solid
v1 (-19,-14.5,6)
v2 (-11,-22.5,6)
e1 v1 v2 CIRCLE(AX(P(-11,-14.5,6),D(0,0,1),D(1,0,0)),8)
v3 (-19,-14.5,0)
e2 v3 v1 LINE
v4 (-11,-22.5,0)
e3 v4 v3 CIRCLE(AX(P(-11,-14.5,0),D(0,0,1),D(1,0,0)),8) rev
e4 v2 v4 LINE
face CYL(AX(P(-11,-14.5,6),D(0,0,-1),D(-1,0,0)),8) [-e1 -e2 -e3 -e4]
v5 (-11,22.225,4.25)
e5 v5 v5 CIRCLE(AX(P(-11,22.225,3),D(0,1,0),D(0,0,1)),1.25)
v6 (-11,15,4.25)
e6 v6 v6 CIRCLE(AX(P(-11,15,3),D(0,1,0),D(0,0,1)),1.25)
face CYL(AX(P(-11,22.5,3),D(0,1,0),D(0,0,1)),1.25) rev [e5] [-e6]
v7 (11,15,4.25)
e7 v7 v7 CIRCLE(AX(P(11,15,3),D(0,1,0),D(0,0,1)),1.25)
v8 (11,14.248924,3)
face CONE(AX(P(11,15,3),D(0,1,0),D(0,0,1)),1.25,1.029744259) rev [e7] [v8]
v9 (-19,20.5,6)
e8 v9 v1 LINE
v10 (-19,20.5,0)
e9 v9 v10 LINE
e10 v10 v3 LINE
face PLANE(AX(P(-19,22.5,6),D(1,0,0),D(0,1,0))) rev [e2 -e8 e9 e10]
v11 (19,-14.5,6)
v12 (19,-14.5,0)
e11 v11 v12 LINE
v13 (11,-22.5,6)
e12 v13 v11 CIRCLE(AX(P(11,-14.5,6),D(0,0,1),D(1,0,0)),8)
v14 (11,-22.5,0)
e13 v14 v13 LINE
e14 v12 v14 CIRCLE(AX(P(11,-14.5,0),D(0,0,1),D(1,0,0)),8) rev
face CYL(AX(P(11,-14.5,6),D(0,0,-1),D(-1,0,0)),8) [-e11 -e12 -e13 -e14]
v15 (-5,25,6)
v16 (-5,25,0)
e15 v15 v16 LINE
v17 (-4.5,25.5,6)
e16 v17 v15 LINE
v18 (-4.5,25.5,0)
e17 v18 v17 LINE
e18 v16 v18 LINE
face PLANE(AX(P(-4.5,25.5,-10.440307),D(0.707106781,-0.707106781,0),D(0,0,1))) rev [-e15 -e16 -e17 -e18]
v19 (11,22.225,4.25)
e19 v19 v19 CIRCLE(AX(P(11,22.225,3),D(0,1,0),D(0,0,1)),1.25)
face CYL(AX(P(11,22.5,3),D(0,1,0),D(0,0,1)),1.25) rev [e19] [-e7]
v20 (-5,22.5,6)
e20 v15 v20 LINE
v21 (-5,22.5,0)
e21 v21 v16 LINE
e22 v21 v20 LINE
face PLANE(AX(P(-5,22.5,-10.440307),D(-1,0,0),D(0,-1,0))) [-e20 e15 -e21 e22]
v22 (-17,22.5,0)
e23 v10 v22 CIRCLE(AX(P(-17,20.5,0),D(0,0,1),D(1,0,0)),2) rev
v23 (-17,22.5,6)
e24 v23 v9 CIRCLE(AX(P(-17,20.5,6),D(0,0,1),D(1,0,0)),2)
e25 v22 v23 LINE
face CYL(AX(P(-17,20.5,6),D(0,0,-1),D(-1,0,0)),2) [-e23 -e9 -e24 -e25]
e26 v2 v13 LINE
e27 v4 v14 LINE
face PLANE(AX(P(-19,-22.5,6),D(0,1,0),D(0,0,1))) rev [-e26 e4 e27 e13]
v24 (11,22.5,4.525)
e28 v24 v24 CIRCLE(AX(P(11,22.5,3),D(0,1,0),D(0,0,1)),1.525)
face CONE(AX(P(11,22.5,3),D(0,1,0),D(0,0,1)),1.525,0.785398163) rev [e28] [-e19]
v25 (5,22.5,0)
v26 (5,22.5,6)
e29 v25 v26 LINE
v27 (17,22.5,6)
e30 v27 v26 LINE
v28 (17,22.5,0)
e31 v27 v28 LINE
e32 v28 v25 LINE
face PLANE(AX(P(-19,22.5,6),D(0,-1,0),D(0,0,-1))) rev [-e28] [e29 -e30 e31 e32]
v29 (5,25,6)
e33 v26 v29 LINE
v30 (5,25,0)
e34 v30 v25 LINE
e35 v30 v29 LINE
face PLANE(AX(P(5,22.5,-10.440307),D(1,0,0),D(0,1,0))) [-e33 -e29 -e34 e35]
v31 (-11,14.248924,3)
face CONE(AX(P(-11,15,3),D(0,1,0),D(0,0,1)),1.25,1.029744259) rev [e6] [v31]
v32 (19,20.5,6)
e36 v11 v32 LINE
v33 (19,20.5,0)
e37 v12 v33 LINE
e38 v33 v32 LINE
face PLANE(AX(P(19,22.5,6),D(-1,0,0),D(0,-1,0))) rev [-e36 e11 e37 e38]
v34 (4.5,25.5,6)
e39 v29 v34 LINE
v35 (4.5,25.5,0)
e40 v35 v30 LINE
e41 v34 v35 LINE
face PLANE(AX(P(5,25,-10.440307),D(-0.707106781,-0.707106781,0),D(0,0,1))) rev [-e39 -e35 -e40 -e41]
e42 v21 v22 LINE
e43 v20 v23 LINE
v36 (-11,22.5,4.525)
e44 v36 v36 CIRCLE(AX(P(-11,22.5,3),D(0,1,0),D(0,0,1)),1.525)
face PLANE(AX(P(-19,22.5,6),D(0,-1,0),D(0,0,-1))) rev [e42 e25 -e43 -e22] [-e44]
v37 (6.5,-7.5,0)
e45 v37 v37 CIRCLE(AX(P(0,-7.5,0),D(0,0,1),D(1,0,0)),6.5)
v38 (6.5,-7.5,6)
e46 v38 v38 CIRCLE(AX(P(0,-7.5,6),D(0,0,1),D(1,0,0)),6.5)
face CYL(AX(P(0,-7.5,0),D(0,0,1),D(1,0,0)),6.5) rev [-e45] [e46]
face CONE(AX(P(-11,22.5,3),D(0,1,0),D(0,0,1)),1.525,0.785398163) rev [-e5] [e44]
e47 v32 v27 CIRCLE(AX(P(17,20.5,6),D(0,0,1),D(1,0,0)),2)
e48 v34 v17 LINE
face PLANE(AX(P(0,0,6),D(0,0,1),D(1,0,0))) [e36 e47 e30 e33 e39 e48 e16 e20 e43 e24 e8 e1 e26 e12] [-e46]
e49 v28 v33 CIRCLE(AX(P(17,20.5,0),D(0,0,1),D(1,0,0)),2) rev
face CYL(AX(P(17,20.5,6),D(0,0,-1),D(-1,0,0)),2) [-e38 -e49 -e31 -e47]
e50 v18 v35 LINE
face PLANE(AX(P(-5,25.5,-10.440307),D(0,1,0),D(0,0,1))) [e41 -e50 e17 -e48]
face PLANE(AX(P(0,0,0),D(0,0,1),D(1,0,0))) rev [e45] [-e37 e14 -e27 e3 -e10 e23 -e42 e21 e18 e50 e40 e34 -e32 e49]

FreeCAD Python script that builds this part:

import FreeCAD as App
import Part
import Sketcher
Q = App.Units.Quantity


def edges_at(feature, points):
    """Names of the edges that pass closest to the given points."""
    edges = feature.Shape.Edges
    near = lambda p: min(range(len(edges)), key=lambda i: edges[i].distToShape(Part.Vertex(*p))[0])
    return sorted({f"Edge{near(p) + 1}" for p in points})


def add_polygon(sketch, points):
    """Adds a closed chain of lines whose ends are joined by coincident constraints."""
    first, n = sketch.GeometryCount, len(points)
    for a, b in zip(points, points[1:] + points[:1]):
        sketch.addGeometry(Part.LineSegment(App.Vector(*a, 0), App.Vector(*b, 0)), False)
    for i in range(n):
        sketch.addConstraint(Sketcher.Constraint("Coincident", first + i, 2, first + (i + 1) % n, 1))

doc = App.newDocument("Part")
params = doc.addObject("Spreadsheet::Sheet", "Params")
for row, (alias, value) in enumerate([
    ("sketch1_width", "38 mm"),
    ("sketch1_height", "45 mm"),
    ("pad1_length", "6 mm"),
    ("sketch2_diameter", "13 mm"),
    ("fillet_radius", "2 mm"),
    ("fillet2_radius", "8 mm"),
    ("sketch3_width", "10 mm"),
    ("sketch3_height", "3 mm"),
    ("pad2_length", "6 mm"),
    ("chamfer_size", "0.5 mm"),
    ("sketch4_diameter", "2.5 mm"),
    ("hole_diameter", "2.5 mm"),
    ("hole_depth", "7.5 mm"),
    ("hole_csink_diameter", "3.05 mm"),
], start=1):
    params.set(f"A{row}", alias)
    params.set(f"B{row}", "=" + value)
    params.setAlias(f"B{row}", alias)

body = doc.addObject("PartDesign::Body", "Body")

sketch1 = body.newObject("Sketcher::SketchObject", "Sketch")
sketch1.AttachmentSupport = (doc.getObject("XY_Plane"), [""])
sketch1.MapMode = "FlatFace"
add_polygon(sketch1, [(-19, 22), (-19, -22), (19, -22), (19, 22)])
sketch1.addConstraint(Sketcher.Constraint("Vertical", 0))
sketch1.addConstraint(Sketcher.Constraint("Horizontal", 1))
sketch1.addConstraint(Sketcher.Constraint("Vertical", 2))
sketch1.addConstraint(Sketcher.Constraint("Horizontal", 3))
sketch1.addConstraint(Sketcher.Constraint("Symmetric", 0, 2, 2, 2, -1, 1))
sketch1.addConstraint(Sketcher.Constraint("DistanceX", 1, 1, 1, 2, Q("38 mm")))
sketch1.addConstraint(Sketcher.Constraint("DistanceY", 0, 2, 0, 1, Q("45 mm")))
sketch1.setExpression("Constraints[9]", "Params.sketch1_width")
sketch1.setExpression("Constraints[10]", "Params.sketch1_height")
pad1 = body.newObject("PartDesign::Pad", "Pad")
pad1.Profile = sketch1
pad1.setExpression("Length", "Params.pad1_length")

sketch2 = body.newObject("Sketcher::SketchObject", "Sketch001")
sketch2.AttachmentSupport = (doc.getObject("XY_Plane"), [""])
sketch2.MapMode = "FlatFace"
sketch2.AttachmentOffset = App.Placement(App.Vector(0, 0, 6), App.Rotation())
sketch2.addGeometry(Part.Circle(App.Vector(0, -8, 0), App.Vector(0, 0, 1), 6), False)
sketch2.addConstraint(Sketcher.Constraint("PointOnObject", 0, 3, -2))
sketch2.addConstraint(Sketcher.Constraint("Diameter", 0, Q("13 mm")))
sketch2.addConstraint(Sketcher.Constraint("DistanceY", 0, 3, -1, 1, Q("7.5 mm")))
sketch2.setExpression("Constraints[1]", "Params.sketch2_diameter")
pocket1 = body.newObject("PartDesign::Pocket", "Pocket")
pocket1.Profile = sketch2
pocket1.Type = "ThroughAll"
doc.recompute()

fillet = body.newObject("PartDesign::Fillet", "Fillet")
fillet.Base = (pocket1, edges_at(pocket1, [(-19, 22.5, 3), (19, 22.5, 3)]))
fillet.setExpression("Radius", "Params.fillet_radius")
doc.recompute()

fillet2 = body.newObject("PartDesign::Fillet", "Fillet001")
fillet2.Base = (fillet, edges_at(fillet, [(19, -22.5, 3), (-19, -22.5, 3)]))
fillet2.setExpression("Radius", "Params.fillet2_radius")

sketch3 = body.newObject("Sketcher::SketchObject", "Sketch002")
sketch3.AttachmentSupport = (doc.getObject("XY_Plane"), [""])
sketch3.MapMode = "FlatFace"
sketch3.AttachmentOffset = App.Placement(App.Vector(0, 0, 6), App.Rotation())
add_polygon(sketch3, [(-5, 25.5), (-5, 22.5), (5, 22.5), (5, 25.5)])
sketch3.addConstraint(Sketcher.Constraint("Vertical", 0))
sketch3.addConstraint(Sketcher.Constraint("Horizontal", 1))
sketch3.addConstraint(Sketcher.Constraint("Vertical", 2))
sketch3.addConstraint(Sketcher.Constraint("Horizontal", 3))
sketch3.addConstraint(Sketcher.Constraint("DistanceX", 1, 1, 1, 2, Q("10 mm")))
sketch3.addConstraint(Sketcher.Constraint("DistanceY", 0, 2, 0, 1, Q("3 mm")))
sketch3.addConstraint(Sketcher.Constraint("DistanceX", 0, 2, -1, 1, Q("5 mm")))
sketch3.addConstraint(Sketcher.Constraint("DistanceY", -1, 1, 0, 2, Q("22.5 mm")))
sketch3.setExpression("Constraints[8]", "Params.sketch3_width")
sketch3.setExpression("Constraints[9]", "Params.sketch3_height")
pad2 = body.newObject("PartDesign::Pad", "Pad001")
pad2.Profile = sketch3
pad2.setExpression("Length", "Params.pad2_length")
pad2.Reversed = True
doc.recompute()

chamfer = body.newObject("PartDesign::Chamfer", "Chamfer")
chamfer.Base = (pad2, edges_at(pad2, [(-5, 25.5, 3), (5, 25.5, 3)]))
chamfer.setExpression("Size", "Params.chamfer_size")

sketch4 = body.newObject("Sketcher::SketchObject", "Sketch003")
sketch4.AttachmentSupport = (doc.getObject("XZ_Plane"), [""])
sketch4.MapMode = "FlatFace"
sketch4.AttachmentOffset = App.Placement(App.Vector(0, 0, -22.5), App.Rotation())
sketch4.addGeometry(Part.Circle(App.Vector(-11, 3, 0), App.Vector(0, 0, 1), 1.2), False)
sketch4.addGeometry(Part.Circle(App.Vector(11, 3, 0), App.Vector(0, 0, 1), 1.2), False)
sketch4.addConstraint(Sketcher.Constraint("Equal", 0, 1))
sketch4.addConstraint(Sketcher.Constraint("Symmetric", 0, 3, 1, 3, -2))
sketch4.addConstraint(Sketcher.Constraint("Diameter", 0, Q("2.5 mm")))
sketch4.addConstraint(Sketcher.Constraint("DistanceX", 0, 3, -1, 1, Q("11 mm")))
sketch4.addConstraint(Sketcher.Constraint("DistanceY", -1, 1, 0, 3, Q("3 mm")))
sketch4.setExpression("Constraints[2]", "Params.sketch4_diameter")
doc.recompute()
hole = body.newObject("PartDesign::Hole", "Hole")
hole.Profile = sketch4
hole.ThreadType = "None"
hole.setExpression("Diameter", "Params.hole_diameter")
hole.DepthType = "Dimension"
hole.setExpression("Depth", "Params.hole_depth")
hole.DrillPoint = "Angled"
hole.DrillPointAngle = 118
hole.HoleCutType = "Countersink"
hole.setExpression("HoleCutDiameter", "Params.hole_csink_diameter")
hole.HoleCutCountersinkAngle = 90
hole.Reversed = True

doc.recompute()
